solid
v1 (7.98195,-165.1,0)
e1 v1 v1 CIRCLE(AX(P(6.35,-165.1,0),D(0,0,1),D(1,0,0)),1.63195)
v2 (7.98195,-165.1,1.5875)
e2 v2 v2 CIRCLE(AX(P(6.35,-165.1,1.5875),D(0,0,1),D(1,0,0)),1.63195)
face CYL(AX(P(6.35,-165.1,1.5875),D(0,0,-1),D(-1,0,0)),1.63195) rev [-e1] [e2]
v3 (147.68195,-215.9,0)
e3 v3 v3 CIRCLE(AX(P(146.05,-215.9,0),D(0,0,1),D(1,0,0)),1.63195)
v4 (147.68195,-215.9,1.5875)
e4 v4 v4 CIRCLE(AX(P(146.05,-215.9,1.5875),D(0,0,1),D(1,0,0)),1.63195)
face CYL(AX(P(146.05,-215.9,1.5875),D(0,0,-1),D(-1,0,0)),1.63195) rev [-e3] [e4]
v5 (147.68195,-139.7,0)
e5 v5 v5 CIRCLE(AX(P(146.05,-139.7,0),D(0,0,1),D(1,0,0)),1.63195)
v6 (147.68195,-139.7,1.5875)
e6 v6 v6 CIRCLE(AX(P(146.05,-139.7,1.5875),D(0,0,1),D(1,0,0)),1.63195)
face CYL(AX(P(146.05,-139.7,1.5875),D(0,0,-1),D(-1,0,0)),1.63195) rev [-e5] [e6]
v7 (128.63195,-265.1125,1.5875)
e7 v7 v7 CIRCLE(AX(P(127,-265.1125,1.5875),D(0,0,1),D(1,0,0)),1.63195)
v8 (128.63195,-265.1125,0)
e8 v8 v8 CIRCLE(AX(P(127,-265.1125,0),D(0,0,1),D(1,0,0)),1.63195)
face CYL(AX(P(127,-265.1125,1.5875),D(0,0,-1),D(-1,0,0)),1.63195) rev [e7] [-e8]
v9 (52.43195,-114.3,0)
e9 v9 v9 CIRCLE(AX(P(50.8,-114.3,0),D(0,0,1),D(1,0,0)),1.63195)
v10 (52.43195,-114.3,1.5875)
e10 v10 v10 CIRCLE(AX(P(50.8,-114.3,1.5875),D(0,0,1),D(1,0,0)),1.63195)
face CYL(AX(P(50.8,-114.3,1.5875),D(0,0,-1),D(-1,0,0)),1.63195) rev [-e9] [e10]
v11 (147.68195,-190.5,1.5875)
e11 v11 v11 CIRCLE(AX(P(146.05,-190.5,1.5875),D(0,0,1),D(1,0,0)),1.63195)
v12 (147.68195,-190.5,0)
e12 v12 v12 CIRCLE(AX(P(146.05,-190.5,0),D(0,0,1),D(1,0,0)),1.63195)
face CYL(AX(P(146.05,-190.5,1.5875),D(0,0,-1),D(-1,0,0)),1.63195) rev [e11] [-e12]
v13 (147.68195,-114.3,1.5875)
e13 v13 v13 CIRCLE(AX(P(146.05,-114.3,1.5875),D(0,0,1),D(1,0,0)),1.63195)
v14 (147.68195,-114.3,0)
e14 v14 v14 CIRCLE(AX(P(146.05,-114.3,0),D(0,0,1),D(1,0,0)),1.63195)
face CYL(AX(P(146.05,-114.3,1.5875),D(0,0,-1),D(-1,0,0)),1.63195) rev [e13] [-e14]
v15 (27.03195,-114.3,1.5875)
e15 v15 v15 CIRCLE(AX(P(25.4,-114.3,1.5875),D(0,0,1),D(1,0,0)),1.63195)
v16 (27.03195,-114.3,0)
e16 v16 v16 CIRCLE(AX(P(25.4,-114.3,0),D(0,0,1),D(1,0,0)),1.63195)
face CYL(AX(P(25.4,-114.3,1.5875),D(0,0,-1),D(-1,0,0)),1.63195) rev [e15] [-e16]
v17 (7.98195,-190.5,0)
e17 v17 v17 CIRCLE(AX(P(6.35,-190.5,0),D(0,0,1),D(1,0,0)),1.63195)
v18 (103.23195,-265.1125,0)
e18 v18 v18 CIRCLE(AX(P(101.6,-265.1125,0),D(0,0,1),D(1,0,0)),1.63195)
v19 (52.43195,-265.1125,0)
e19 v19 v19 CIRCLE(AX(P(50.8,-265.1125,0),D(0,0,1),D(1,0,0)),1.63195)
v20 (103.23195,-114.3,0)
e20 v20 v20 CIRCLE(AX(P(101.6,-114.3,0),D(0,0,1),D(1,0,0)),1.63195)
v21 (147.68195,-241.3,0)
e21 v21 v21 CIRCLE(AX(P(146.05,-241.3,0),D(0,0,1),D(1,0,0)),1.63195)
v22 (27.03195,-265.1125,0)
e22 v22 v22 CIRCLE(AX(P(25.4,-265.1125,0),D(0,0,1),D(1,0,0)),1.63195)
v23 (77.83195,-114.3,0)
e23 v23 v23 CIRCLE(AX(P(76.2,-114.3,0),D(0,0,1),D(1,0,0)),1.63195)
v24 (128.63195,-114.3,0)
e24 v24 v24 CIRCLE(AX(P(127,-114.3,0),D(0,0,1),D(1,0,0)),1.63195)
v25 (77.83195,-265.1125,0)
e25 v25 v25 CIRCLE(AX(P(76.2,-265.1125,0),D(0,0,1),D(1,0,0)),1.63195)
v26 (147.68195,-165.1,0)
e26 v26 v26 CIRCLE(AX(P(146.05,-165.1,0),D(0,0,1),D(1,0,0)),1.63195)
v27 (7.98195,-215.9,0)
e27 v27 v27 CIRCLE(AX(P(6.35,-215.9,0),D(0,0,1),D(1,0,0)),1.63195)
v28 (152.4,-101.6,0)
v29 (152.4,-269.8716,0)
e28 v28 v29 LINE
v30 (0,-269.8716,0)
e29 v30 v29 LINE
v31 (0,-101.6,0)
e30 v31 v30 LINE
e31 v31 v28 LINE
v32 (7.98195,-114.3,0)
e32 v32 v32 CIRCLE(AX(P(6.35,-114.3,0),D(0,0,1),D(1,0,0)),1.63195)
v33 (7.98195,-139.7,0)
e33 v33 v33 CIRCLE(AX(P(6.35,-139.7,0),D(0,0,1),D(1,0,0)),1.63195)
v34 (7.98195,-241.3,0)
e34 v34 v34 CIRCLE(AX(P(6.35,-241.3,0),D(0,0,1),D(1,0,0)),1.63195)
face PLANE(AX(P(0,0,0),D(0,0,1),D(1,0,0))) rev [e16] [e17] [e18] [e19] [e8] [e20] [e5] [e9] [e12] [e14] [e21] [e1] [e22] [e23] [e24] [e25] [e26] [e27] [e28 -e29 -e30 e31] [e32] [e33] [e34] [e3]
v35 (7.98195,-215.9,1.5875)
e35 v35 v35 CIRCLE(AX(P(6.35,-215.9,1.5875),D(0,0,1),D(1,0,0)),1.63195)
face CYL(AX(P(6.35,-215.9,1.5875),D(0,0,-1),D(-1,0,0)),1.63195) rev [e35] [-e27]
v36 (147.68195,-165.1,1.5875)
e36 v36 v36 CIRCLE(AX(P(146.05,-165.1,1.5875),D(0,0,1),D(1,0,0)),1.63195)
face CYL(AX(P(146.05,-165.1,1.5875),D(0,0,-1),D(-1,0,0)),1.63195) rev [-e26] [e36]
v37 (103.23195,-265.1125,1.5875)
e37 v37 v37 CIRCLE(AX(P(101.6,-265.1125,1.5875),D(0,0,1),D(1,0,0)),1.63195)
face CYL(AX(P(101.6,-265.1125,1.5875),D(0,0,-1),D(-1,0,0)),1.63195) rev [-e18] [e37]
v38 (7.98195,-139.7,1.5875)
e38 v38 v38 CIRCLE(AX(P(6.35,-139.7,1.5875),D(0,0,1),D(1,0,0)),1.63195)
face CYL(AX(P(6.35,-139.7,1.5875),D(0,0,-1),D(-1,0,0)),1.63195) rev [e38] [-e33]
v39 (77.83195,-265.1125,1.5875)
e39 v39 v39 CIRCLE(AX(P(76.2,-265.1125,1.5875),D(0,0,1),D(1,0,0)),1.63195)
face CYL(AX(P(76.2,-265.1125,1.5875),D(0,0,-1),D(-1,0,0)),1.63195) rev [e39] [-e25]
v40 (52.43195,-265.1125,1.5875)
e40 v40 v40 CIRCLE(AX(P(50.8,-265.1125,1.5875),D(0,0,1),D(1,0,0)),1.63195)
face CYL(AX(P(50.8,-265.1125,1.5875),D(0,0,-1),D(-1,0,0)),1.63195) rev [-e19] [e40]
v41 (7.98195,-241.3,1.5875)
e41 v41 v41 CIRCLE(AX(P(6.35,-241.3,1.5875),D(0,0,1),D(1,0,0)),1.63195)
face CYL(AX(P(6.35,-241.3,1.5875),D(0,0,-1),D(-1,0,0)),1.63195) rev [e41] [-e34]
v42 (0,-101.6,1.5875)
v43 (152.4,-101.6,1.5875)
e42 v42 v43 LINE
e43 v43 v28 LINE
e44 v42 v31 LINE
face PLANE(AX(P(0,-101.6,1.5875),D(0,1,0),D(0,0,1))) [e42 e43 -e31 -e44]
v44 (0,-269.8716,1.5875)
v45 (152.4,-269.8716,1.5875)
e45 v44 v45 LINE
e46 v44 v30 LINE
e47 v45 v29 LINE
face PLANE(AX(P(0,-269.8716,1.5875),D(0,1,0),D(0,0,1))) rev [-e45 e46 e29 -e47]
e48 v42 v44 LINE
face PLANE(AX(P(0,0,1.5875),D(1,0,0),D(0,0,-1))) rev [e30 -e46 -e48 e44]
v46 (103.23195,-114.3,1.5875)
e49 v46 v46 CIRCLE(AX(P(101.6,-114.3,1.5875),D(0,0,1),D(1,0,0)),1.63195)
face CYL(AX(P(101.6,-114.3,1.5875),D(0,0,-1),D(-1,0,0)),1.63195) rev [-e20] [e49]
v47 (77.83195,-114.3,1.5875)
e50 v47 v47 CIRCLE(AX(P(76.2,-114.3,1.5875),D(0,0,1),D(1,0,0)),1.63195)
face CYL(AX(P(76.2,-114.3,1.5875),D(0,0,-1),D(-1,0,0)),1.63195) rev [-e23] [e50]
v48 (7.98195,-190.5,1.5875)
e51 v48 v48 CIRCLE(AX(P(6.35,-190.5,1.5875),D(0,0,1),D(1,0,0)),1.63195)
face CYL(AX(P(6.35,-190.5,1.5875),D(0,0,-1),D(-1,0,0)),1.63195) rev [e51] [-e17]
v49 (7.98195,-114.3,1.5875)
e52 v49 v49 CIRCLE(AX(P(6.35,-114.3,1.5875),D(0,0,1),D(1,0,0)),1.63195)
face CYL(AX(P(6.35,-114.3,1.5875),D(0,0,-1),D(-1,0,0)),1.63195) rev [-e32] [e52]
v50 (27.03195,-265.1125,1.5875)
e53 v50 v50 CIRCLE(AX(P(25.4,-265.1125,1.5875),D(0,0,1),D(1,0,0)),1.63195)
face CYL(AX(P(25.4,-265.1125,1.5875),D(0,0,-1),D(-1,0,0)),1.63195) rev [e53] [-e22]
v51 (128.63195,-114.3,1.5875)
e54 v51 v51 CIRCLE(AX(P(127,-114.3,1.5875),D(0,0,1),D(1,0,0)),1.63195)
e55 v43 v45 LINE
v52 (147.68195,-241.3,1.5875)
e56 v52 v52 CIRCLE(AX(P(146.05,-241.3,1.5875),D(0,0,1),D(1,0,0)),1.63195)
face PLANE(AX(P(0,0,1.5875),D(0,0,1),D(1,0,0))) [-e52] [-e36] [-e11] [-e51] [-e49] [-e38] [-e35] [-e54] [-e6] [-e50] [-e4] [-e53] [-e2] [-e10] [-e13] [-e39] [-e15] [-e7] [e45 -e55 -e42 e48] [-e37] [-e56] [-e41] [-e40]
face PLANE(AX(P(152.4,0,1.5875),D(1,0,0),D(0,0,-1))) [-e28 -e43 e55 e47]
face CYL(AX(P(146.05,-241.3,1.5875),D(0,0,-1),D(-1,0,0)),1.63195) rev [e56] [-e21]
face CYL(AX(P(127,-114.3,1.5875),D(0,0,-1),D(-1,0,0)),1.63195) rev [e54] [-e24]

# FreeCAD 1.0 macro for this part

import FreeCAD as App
import Part
import Sketcher

V = App.Vector
Q = App.Units.Quantity

doc = App.newDocument("Part")
params = doc.addObject("Spreadsheet::Sheet", "Params")
for row, (alias, value) in enumerate([
    ("sketch1_width", "6 in"),
    ("pad1_length", "0.0625 in"),
], start=1):
    params.set(f"A{row}", alias)
    params.set(f"B{row}", "=" + value)
    params.setAlias(f"B{row}", alias)

body = doc.addObject("PartDesign::Body", "Body")

# Sketch on XY plane
sketch1 = body.newObject("Sketcher::SketchObject", "Sketch")
sketch1.AttachmentSupport = (doc.getObject("XY_Plane"), [""])
sketch1.MapMode = "FlatFace"
sketch1.addGeometry([
    Part.LineSegment(V(0, -101.6, 0), V(0, -269.9, 0)),  # 0
    Part.LineSegment(V(0, -269.9, 0), V(152.4, -269.9, 0)),  # 1
    Part.LineSegment(V(152.4, -269.9, 0), V(152.4, -101.6, 0)),  # 2
    Part.LineSegment(V(152.4, -101.6, 0), V(0, -101.6, 0)),  # 3
    Part.Circle(V(25.4, -265.1, 0), V(0, 0, 1), 1.6),  # 4
    Part.Circle(V(6.3, -241.3, 0), V(0, 0, 1), 1.6),  # 5
    Part.Circle(V(50.8, -265.1, 0), V(0, 0, 1), 1.6),  # 6
    Part.Circle(V(76.2, -265.1, 0), V(0, 0, 1), 1.6),  # 7
    Part.Circle(V(6.3, -215.9, 0), V(0, 0, 1), 1.6),  # 8
    Part.Circle(V(6.3, -190.5, 0), V(0, 0, 1), 1.6),  # 9
    Part.Circle(V(101.6, -265.1, 0), V(0, 0, 1), 1.6),  # 10
    Part.Circle(V(127, -265.1, 0), V(0, 0, 1), 1.6),  # 11
    Part.Circle(V(146.1, -241.3, 0), V(0, 0, 1), 1.6),  # 12
    Part.Circle(V(146.1, -215.9, 0), V(0, 0, 1), 1.6),  # 13
    Part.Circle(V(146.1, -190.5, 0), V(0, 0, 1), 1.6),  # 14
    Part.Circle(V(6.3, -165.1, 0), V(0, 0, 1), 1.6),  # 15
    Part.Circle(V(6.3, -139.7, 0), V(0, 0, 1), 1.6),  # 16
    Part.Circle(V(6.3, -114.3, 0), V(0, 0, 1), 1.6),  # 17
    Part.Circle(V(25.4, -114.3, 0), V(0, 0, 1), 1.6),  # 18
    Part.Circle(V(50.8, -114.3, 0), V(0, 0, 1), 1.6),  # 19
    Part.Circle(V(76.2, -114.3, 0), V(0, 0, 1), 1.6),  # 20
    Part.Circle(V(146.1, -165.1, 0), V(0, 0, 1), 1.6),  # 21
    Part.Circle(V(101.6, -114.3, 0), V(0, 0, 1), 1.6),  # 22
    Part.Circle(V(146.1, -139.7, 0), V(0, 0, 1), 1.6),  # 23
    Part.Circle(V(127, -114.3, 0), V(0, 0, 1), 1.6),  # 24
    Part.Circle(V(146.1, -114.3, 0), V(0, 0, 1), 1.6),  # 25
], False)
sketch1.addConstraint([
    Sketcher.Constraint("Coincident", 0, 2, 1, 1),
    Sketcher.Constraint("Coincident", 1, 2, 2, 1),
    Sketcher.Constraint("Coincident", 2, 2, 3, 1),
    Sketcher.Constraint("Coincident", 3, 2, 0, 1),
    Sketcher.Constraint("Vertical", 0),
    Sketcher.Constraint("Horizontal", 1),
    Sketcher.Constraint("Vertical", 2),
    Sketcher.Constraint("Horizontal", 3),
    Sketcher.Constraint("Equal", 4, 5),
    Sketcher.Constraint("Equal", 5, 6),
    Sketcher.Constraint("Equal", 6, 7),
    Sketcher.Constraint("Equal", 7, 8),
    Sketcher.Constraint("Equal", 8, 9),
    Sketcher.Constraint("Equal", 9, 10),
    Sketcher.Constraint("Equal", 10, 11),
    Sketcher.Constraint("Equal", 11, 12),
    Sketcher.Constraint("Equal", 12, 13),
    Sketcher.Constraint("Equal", 13, 14),
    Sketcher.Constraint("Equal", 14, 15),
    Sketcher.Constraint("Equal", 15, 16),
    Sketcher.Constraint("Equal", 16, 17),
    Sketcher.Constraint("Equal", 17, 18),
    Sketcher.Constraint("Equal", 18, 19),
    Sketcher.Constraint("Equal", 19, 20),
    Sketcher.Constraint("Equal", 20, 21),
    Sketcher.Constraint("Equal", 21, 22),
    Sketcher.Constraint("Equal", 22, 23),
    Sketcher.Constraint("Equal", 23, 24),
    Sketcher.Constraint("Equal", 24, 25),
    Sketcher.Constraint("PointOnObject", 0, 2, -2),
    Sketcher.Constraint("Horizontal", 4, 3, 6, 3),
    Sketcher.Constraint("Horizontal", 6, 3, 7, 3),
    Sketcher.Constraint("Horizontal", 7, 3, 10, 3),
    Sketcher.Constraint("Horizontal", 10, 3, 11, 3),
    Sketcher.Constraint("Horizontal", 5, 3, 12, 3),
    Sketcher.Constraint("Horizontal", 8, 3, 13, 3),
    Sketcher.Constraint("Horizontal", 9, 3, 14, 3),
    Sketcher.Constraint("Horizontal", 17, 3, 18, 3),
    Sketcher.Constraint("Horizontal", 18, 3, 19, 3),
    Sketcher.Constraint("Horizontal", 19, 3, 20, 3),
    Sketcher.Constraint("Horizontal", 15, 3, 21, 3),
    Sketcher.Constraint("Horizontal", 20, 3, 22, 3),
    Sketcher.Constraint("Horizontal", 16, 3, 23, 3),
    Sketcher.Constraint("Horizontal", 22, 3, 24, 3),
    Sketcher.Constraint("Horizontal", 24, 3, 25, 3),
    Sketcher.Constraint("Vertical", 5, 3, 8, 3),
    Sketcher.Constraint("Vertical", 8, 3, 9, 3),
    Sketcher.Constraint("Vertical", 12, 3, 13, 3),
    Sketcher.Constraint("Vertical", 13, 3, 14, 3),
    Sketcher.Constraint("Vertical", 9, 3, 15, 3),
    Sketcher.Constraint("Vertical", 15, 3, 16, 3),
    Sketcher.Constraint("Vertical", 16, 3, 17, 3),
    Sketcher.Constraint("Vertical", 4, 3, 18, 3),
    Sketcher.Constraint("Vertical", 6, 3, 19, 3),
    Sketcher.Constraint("Vertical", 7, 3, 20, 3),
    Sketcher.Constraint("Vertical", 14, 3, 21, 3),
    Sketcher.Constraint("Vertical", 10, 3, 22, 3),
    Sketcher.Constraint("Vertical", 21, 3, 23, 3),
    Sketcher.Constraint("Vertical", 11, 3, 24, 3),
    Sketcher.Constraint("Vertical", 23, 3, 25, 3),
    Sketcher.Constraint("DistanceX", 1, 1, 1, 2, Q("6 in")),
    Sketcher.Constraint("DistanceX", -1, 1, 4, 3, Q("1 in")),
    Sketcher.Constraint("DistanceX", -1, 1, 6, 3, Q("2 in")),
    Sketcher.Constraint("DistanceX", -1, 1, 7, 3, Q("3 in")),
    Sketcher.Constraint("DistanceX", -1, 1, 10, 3, Q("4 in")),
    Sketcher.Constraint("DistanceX", -1, 1, 11, 3, Q("5 in")),
    Sketcher.Constraint("DistanceY", 2, 2, -1, 1, Q("4 in")),
    Sketcher.Constraint("DistanceY", 5, 3, 8, 3, Q("1 in")),
    Sketcher.Constraint("DistanceY", 8, 3, 9, 3, Q("1 in")),
    Sketcher.Constraint("DistanceY", 9, 3, 15, 3, Q("1 in")),
    Sketcher.Constraint("DistanceY", 15, 3, 16, 3, Q("1 in")),
    Sketcher.Constraint("DistanceY", 16, 3, 17, 3, Q("1 in")),
    Sketcher.Constraint("Diameter", 4, Q("0.1285 in")),
    Sketcher.Constraint("DistanceY", 5, 3, -1, 1, Q("9.5 in")),
    Sketcher.Constraint("DistanceX", -1, 1, 5, 3, Q("0.25 in")),
    Sketcher.Constraint("DistanceX", -1, 1, 12, 3, Q("5.75 in")),
    Sketcher.Constraint("DistanceY", 4, 3, -1, 1, Q("10.4375 in")),
    Sketcher.Constraint("DistanceY", 0, 2, 0, 1, Q("168.2716 mm")),
])
sketch1.setExpression("Constraints[60]", "Params.sketch1_width")
pad1 = body.newObject("PartDesign::Pad", "Pad")
pad1.Profile = sketch1
pad1.setExpression("Length", "Params.pad1_length")

doc.recompute()
